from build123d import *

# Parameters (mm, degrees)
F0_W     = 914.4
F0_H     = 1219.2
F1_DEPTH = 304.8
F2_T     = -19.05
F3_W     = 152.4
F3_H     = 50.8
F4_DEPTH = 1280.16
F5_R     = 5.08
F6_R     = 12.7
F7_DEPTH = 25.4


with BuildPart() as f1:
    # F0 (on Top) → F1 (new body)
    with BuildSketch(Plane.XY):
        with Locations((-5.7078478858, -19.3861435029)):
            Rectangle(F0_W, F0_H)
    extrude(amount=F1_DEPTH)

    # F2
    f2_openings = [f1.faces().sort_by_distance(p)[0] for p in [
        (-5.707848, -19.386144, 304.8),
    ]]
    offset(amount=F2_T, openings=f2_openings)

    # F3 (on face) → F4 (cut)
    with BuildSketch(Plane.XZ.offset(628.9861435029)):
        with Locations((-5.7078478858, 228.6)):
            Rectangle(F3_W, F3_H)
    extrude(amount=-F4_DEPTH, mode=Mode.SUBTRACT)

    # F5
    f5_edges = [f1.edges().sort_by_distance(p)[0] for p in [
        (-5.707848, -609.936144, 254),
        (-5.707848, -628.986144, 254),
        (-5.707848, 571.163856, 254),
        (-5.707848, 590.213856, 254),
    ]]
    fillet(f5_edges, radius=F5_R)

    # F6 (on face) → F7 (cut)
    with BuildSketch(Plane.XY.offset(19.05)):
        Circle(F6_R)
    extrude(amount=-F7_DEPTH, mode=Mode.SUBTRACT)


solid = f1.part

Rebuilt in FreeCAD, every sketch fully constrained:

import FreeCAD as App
import Part
import Sketcher
Q = App.Units.Quantity


def edges_at(feature, points):
    """Names of the edges that pass closest to the given points."""
    edges = feature.Shape.Edges
    near = lambda p: min(range(len(edges)), key=lambda i: edges[i].distToShape(Part.Vertex(*p))[0])
    return sorted({f"Edge{near(p) + 1}" for p in points})


def faces_at(feature, points):
    """Names of the faces that lie closest to the given points."""
    faces = feature.Shape.Faces
    near = lambda p: min(range(len(faces)), key=lambda i: faces[i].distToShape(Part.Vertex(*p))[0])
    return sorted({f"Face{near(p) + 1}" for p in points})

doc = App.newDocument("Part")
body = doc.addObject("PartDesign::Body", "Body")

# Sketch on XY plane
sketch1 = body.newObject("Sketcher::SketchObject", "Sketch")
sketch1.AttachmentSupport = (doc.getObject("XY_Plane"), [""])
sketch1.MapMode = "FlatFace"
sketch1.addGeometry(Part.LineSegment(App.Vector(-463, 590, 0), App.Vector(-463, -629, 0)), False)
sketch1.addGeometry(Part.LineSegment(App.Vector(-463, -629, 0), App.Vector(451, -629, 0)), False)
sketch1.addGeometry(Part.LineSegment(App.Vector(451, -629, 0), App.Vector(451, 590, 0)), False)
sketch1.addGeometry(Part.LineSegment(App.Vector(451, 590, 0), App.Vector(-463, 590, 0)), False)
sketch1.addConstraint(Sketcher.Constraint("Coincident", 0, 2, 1, 1))
sketch1.addConstraint(Sketcher.Constraint("Coincident", 1, 2, 2, 1))
sketch1.addConstraint(Sketcher.Constraint("Coincident", 2, 2, 3, 1))
sketch1.addConstraint(Sketcher.Constraint("Coincident", 3, 2, 0, 1))
sketch1.addConstraint(Sketcher.Constraint("Vertical", 0))
sketch1.addConstraint(Sketcher.Constraint("Horizontal", 1))
sketch1.addConstraint(Sketcher.Constraint("Vertical", 2))
sketch1.addConstraint(Sketcher.Constraint("Horizontal", 3))
sketch1.addConstraint(Sketcher.Constraint("DistanceX", 1, 1, 1, 2, Q("36 in")))
sketch1.addConstraint(Sketcher.Constraint("DistanceY", 0, 2, 0, 1, Q("48 in")))
sketch1.addConstraint(Sketcher.Constraint("DistanceX", 0, 2, -1, 1, Q("462.907848 mm")))
sketch1.addConstraint(Sketcher.Constraint("DistanceY", 0, 2, -1, 1, Q("628.986144 mm")))
pad1 = body.newObject("PartDesign::Pad", "Pad")
pad1.Profile = sketch1
pad1.Length = Q("12 in")
doc.recompute()

thickness = body.newObject("PartDesign::Thickness", "Thickness")
thickness.Base = (pad1, faces_at(pad1, [(-5.708, -19.386, 304.8)]))
thickness.Value = Q("0.75 in")
thickness.Reversed = True
thickness.Join = "Arc"

# Sketch on XZ plane
sketch2 = body.newObject("Sketcher::SketchObject", "Sketch001")
sketch2.AttachmentSupport = (doc.getObject("XZ_Plane"), [""])
sketch2.MapMode = "FlatFace"
sketch2.AttachmentOffset = App.Placement(App.Vector(0, 0, 628.986144), App.Rotation())
sketch2.addGeometry(Part.LineSegment(App.Vector(-82, 254, 0), App.Vector(-82, 203, 0)), False)
sketch2.addGeometry(Part.LineSegment(App.Vector(-82, 203, 0), App.Vector(70, 203, 0)), False)
sketch2.addGeometry(Part.LineSegment(App.Vector(70, 203, 0), App.Vector(70, 254, 0)), False)
sketch2.addGeometry(Part.LineSegment(App.Vector(70, 254, 0), App.Vector(-82, 254, 0)), False)
sketch2.addConstraint(Sketcher.Constraint("Coincident", 0, 2, 1, 1))
sketch2.addConstraint(Sketcher.Constraint("Coincident", 1, 2, 2, 1))
sketch2.addConstraint(Sketcher.Constraint("Coincident", 2, 2, 3, 1))
sketch2.addConstraint(Sketcher.Constraint("Coincident", 3, 2, 0, 1))
sketch2.addConstraint(Sketcher.Constraint("Vertical", 0))
sketch2.addConstraint(Sketcher.Constraint("Horizontal", 1))
sketch2.addConstraint(Sketcher.Constraint("Vertical", 2))
sketch2.addConstraint(Sketcher.Constraint("Horizontal", 3))
sketch2.addConstraint(Sketcher.Constraint("DistanceX", 1, 1, 1, 2, Q("6 in")))
sketch2.addConstraint(Sketcher.Constraint("DistanceY", 0, 2, 0, 1, Q("2 in")))
sketch2.addConstraint(Sketcher.Constraint("DistanceY", -1, 1, 0, 2, Q("8 in")))
sketch2.addConstraint(Sketcher.Constraint("DistanceX", 0, 2, -1, 1, Q("81.907848 mm")))
pocket1 = body.newObject("PartDesign::Pocket", "Pocket")
pocket1.Profile = sketch2
pocket1.Length = Q("50.4 in")
doc.recompute()

fillet = body.newObject("PartDesign::Fillet", "Fillet")
fillet.Base = (pocket1, edges_at(pocket1, [
    (-5.708, -609.936, 254),
    (-5.708, -628.986, 254),
    (-5.708, 571.164, 254),
    (-5.708, 590.214, 254),
]))
fillet.Radius = Q("0.2 in")

# Sketch on XY plane
sketch3 = body.newObject("Sketcher::SketchObject", "Sketch002")
sketch3.AttachmentSupport = (doc.getObject("XY_Plane"), [""])
sketch3.MapMode = "FlatFace"
sketch3.AttachmentOffset = App.Placement(App.Vector(0, 0, 0.75 * 25.4), App.Rotation())
sketch3.addGeometry(Part.Circle(App.Vector(0, 0, 0), App.Vector(0, 0, 1), 13), False)
sketch3.addConstraint(Sketcher.Constraint("Coincident", 0, 3, -1, 1))
sketch3.addConstraint(Sketcher.Constraint("Diameter", 0, Q("1 in")))
pocket2 = body.newObject("PartDesign::Pocket", "Pocket001")
pocket2.Profile = sketch3
pocket2.Length = Q("1 in")

doc.recompute()
